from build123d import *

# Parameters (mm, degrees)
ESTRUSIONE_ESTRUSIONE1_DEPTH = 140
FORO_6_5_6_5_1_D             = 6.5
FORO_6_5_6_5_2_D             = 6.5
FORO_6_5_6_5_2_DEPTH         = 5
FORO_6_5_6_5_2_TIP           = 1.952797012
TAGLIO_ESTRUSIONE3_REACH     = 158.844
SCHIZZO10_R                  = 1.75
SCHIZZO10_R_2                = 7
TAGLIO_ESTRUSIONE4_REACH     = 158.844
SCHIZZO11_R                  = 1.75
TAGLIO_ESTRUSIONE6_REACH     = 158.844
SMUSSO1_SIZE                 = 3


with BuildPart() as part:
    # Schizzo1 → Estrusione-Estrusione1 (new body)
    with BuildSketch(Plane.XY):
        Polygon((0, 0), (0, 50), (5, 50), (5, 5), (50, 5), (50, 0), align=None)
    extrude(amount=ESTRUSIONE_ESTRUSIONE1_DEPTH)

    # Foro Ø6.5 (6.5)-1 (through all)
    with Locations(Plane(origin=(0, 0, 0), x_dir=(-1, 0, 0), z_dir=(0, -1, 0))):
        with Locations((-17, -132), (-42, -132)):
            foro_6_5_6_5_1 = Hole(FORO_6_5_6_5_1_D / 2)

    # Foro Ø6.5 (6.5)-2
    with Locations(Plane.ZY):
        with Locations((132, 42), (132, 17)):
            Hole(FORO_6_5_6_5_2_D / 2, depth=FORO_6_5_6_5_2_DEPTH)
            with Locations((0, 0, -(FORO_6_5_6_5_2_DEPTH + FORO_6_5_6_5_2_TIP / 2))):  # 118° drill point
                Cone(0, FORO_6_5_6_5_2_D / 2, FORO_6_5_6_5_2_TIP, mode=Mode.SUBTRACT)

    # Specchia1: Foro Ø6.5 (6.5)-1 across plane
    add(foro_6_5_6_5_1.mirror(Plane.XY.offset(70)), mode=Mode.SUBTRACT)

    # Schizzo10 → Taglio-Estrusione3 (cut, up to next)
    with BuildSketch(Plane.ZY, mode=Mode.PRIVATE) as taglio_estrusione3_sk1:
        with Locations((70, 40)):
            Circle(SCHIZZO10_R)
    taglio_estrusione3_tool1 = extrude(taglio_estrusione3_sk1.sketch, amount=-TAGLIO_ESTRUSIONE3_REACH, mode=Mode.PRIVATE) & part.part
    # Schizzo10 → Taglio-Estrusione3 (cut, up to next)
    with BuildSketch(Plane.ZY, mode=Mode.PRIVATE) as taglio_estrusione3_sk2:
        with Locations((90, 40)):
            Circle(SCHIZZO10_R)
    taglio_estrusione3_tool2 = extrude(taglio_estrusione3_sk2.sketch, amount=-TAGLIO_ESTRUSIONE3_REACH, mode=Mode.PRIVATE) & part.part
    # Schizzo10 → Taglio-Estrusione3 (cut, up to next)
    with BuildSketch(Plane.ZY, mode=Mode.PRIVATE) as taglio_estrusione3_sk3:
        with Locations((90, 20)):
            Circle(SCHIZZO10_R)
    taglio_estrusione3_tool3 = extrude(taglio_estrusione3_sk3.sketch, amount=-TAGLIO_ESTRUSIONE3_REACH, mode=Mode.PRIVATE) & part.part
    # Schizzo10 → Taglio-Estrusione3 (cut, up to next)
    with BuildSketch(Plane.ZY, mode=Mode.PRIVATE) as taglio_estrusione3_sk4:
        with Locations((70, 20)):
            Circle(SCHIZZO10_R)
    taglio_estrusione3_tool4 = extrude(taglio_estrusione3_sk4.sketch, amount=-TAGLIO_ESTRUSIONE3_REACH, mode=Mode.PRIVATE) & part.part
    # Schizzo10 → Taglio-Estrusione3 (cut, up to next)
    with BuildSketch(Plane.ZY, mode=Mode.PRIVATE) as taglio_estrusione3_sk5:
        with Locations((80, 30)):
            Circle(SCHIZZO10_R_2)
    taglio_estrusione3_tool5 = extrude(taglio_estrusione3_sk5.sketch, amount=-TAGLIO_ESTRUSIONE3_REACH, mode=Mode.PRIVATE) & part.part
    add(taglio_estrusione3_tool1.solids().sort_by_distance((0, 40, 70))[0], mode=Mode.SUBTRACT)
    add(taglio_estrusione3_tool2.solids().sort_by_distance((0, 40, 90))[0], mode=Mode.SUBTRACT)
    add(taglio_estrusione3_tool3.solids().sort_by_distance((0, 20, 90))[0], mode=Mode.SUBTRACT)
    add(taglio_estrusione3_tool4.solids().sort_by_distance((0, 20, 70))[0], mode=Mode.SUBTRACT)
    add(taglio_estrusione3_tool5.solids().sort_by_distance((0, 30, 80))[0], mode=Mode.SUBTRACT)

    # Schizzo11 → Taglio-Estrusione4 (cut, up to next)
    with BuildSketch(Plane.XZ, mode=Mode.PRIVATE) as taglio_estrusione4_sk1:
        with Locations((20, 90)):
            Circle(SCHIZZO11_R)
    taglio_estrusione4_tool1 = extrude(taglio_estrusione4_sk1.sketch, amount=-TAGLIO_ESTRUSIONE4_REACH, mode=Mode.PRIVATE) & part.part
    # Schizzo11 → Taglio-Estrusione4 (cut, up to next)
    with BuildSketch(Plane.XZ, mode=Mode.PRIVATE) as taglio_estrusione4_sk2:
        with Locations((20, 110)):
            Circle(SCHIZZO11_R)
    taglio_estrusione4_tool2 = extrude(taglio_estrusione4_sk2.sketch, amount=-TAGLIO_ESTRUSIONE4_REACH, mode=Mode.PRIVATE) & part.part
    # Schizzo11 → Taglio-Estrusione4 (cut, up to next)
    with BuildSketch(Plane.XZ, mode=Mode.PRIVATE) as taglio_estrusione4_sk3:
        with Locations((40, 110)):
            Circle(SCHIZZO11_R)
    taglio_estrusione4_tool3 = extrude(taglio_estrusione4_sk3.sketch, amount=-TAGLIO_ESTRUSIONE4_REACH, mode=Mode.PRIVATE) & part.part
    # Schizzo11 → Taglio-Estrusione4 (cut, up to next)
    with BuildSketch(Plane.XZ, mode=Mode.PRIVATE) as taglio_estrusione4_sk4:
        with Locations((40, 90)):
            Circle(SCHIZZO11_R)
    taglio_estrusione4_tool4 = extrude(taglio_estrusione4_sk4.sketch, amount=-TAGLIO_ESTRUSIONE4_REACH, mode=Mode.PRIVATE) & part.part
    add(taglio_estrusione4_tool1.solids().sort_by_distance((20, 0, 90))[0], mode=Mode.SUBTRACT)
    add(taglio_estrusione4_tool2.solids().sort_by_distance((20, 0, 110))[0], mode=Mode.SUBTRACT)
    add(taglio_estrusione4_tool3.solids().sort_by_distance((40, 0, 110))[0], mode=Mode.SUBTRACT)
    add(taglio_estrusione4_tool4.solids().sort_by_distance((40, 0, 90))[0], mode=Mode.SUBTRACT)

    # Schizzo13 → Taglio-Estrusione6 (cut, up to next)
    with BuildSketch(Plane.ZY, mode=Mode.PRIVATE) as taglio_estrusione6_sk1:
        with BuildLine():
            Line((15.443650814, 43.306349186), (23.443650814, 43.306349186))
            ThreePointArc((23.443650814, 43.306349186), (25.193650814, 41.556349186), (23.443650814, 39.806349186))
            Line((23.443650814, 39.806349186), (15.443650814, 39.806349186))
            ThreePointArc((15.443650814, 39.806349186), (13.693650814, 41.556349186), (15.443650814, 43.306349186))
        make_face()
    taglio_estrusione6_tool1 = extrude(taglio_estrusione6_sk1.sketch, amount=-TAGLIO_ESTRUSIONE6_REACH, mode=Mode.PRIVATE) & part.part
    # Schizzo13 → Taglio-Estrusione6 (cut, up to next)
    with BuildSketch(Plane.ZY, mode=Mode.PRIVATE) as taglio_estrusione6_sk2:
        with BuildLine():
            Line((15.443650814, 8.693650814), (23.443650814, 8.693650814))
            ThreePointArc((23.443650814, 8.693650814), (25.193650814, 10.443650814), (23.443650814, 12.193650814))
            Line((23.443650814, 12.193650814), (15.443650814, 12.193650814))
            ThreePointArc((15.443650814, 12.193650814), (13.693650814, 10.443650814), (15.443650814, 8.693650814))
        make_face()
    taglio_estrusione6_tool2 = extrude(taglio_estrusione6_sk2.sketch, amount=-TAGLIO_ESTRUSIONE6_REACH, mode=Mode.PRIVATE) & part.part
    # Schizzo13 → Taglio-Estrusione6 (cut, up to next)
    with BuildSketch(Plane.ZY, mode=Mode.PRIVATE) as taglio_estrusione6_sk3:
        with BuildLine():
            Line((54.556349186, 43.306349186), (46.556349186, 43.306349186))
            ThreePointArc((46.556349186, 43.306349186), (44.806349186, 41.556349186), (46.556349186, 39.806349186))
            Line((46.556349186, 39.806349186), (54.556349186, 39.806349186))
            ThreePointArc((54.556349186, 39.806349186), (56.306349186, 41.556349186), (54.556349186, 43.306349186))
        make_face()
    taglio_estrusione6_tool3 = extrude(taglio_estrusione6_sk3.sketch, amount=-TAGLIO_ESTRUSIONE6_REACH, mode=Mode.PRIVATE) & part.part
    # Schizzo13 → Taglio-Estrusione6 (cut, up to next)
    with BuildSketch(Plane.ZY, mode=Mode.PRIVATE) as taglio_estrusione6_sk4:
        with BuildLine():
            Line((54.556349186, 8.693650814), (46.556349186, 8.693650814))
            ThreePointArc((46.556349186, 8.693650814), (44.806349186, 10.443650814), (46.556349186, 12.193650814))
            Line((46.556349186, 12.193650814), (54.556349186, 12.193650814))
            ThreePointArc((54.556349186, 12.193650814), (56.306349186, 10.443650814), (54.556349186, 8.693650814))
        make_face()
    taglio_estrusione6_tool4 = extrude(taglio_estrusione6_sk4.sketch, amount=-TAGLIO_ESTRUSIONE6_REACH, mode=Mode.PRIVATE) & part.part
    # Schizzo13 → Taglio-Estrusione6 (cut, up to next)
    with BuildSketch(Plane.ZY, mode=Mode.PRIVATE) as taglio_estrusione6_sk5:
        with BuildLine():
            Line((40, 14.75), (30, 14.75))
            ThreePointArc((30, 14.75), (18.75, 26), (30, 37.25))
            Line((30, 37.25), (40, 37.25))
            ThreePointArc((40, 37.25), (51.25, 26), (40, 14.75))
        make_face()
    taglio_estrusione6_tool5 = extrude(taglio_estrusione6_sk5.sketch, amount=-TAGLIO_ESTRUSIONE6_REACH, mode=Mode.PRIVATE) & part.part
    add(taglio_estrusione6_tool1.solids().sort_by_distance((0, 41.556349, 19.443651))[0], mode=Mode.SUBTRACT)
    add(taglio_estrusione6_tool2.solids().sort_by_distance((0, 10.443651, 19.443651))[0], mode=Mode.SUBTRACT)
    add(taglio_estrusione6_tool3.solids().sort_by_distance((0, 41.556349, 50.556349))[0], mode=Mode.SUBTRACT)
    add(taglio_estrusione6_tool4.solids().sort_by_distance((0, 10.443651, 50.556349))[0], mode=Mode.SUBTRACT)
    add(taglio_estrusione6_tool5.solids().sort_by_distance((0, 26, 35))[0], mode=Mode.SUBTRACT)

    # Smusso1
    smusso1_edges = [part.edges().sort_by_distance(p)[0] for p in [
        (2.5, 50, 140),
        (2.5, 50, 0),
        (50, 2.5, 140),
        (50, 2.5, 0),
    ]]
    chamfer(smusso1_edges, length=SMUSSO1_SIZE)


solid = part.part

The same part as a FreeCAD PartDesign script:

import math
import FreeCAD as App
import Part
import Sketcher
from FreeCAD import Vector


def edges_at(feature, points):
    """Names of the edges that pass closest to the given points."""
    edges = feature.Shape.Edges
    near = lambda p: min(range(len(edges)), key=lambda i: edges[i].distToShape(Part.Vertex(*p))[0])
    return sorted({f"Edge{near(p) + 1}" for p in points})

doc = App.newDocument("Part")
body = doc.addObject("PartDesign::Body", "Body")

# Sketch on XY plane
sketch1 = body.newObject("Sketcher::SketchObject", "Sketch")
sketch1.AttachmentSupport = (doc.getObject("XY_Plane"), [""])
sketch1.MapMode = "FlatFace"
sketch1.addGeometry(Part.LineSegment(Vector(0, 50, 0), Vector(0, 0, 0)), False)
sketch1.addGeometry(Part.LineSegment(Vector(0, 0, 0), Vector(50, 0, 0)), False)
sketch1.addGeometry(Part.LineSegment(Vector(50, 0, 0), Vector(50, 5, 0)), False)
sketch1.addGeometry(Part.LineSegment(Vector(50, 5, 0), Vector(5, 5, 0)), False)
sketch1.addGeometry(Part.LineSegment(Vector(5, 5, 0), Vector(5, 50, 0)), False)
sketch1.addGeometry(Part.LineSegment(Vector(5, 50, 0), Vector(0, 50, 0)), False)
sketch1.addConstraint(Sketcher.Constraint("Coincident", 0, 2, 1, 1))
sketch1.addConstraint(Sketcher.Constraint("Coincident", 1, 2, 2, 1))
sketch1.addConstraint(Sketcher.Constraint("Coincident", 2, 2, 3, 1))
sketch1.addConstraint(Sketcher.Constraint("Coincident", 3, 2, 4, 1))
sketch1.addConstraint(Sketcher.Constraint("Coincident", 4, 2, 5, 1))
sketch1.addConstraint(Sketcher.Constraint("Coincident", 5, 2, 0, 1))
sketch1.addConstraint(Sketcher.Constraint("Vertical", 0))
sketch1.addConstraint(Sketcher.Constraint("Horizontal", 1))
sketch1.addConstraint(Sketcher.Constraint("Vertical", 2))
sketch1.addConstraint(Sketcher.Constraint("Horizontal", 3))
sketch1.addConstraint(Sketcher.Constraint("Vertical", 4))
sketch1.addConstraint(Sketcher.Constraint("Horizontal", 5))
sketch1.addConstraint(Sketcher.Constraint("Coincident", 0, 2, -1, 1))
sketch1.addConstraint(Sketcher.Constraint("Equal", 1, 0))
sketch1.addConstraint(Sketcher.Constraint("Equal", 5, 2))
sketch1.addConstraint(Sketcher.Constraint("DistanceX", 1, 1, 1, 2, 50.0))
sketch1.addConstraint(Sketcher.Constraint("DistanceX", 3, 2, 3, 1, 45.0))
pad1 = body.newObject("PartDesign::Pad", "Pad")
pad1.Profile = sketch1
pad1.Length = 140

# Sketch on XZ plane
sketch2 = body.newObject("Sketcher::SketchObject", "Sketch001")
sketch2.AttachmentSupport = (doc.getObject("XZ_Plane"), [""])
sketch2.MapMode = "FlatFace"
sketch2.addGeometry(Part.Circle(Vector(17, 132, 0), Vector(0, 0, 1), 3.2), False)
sketch2.addGeometry(Part.Circle(Vector(42, 132, 0), Vector(0, 0, 1), 3.2), False)
sketch2.addConstraint(Sketcher.Constraint("Equal", 0, 1))
sketch2.addConstraint(Sketcher.Constraint("Horizontal", 0, 3, 1, 3))
sketch2.addConstraint(Sketcher.Constraint("Diameter", 0, 6.5))
sketch2.addConstraint(Sketcher.Constraint("DistanceX", -1, 1, 0, 3, 17.0))
sketch2.addConstraint(Sketcher.Constraint("DistanceY", -1, 1, 0, 3, 132.0))
sketch2.addConstraint(Sketcher.Constraint("DistanceX", -1, 1, 1, 3, 42.0))
doc.recompute()
hole = body.newObject("PartDesign::Hole", "Hole")
hole.Profile = sketch2
hole.ThreadType = "None"
hole.Diameter = 6.5
hole.DepthType = "ThroughAll"

# Sketch on YZ plane
sketch3 = body.newObject("Sketcher::SketchObject", "Sketch002")
sketch3.AttachmentSupport = (doc.getObject("YZ_Plane"), [""])
sketch3.MapMode = "FlatFace"
sketch3.addGeometry(Part.Circle(Vector(42, 132, 0), Vector(0, 0, 1), 3.2), False)
sketch3.addGeometry(Part.Circle(Vector(17, 132, 0), Vector(0, 0, 1), 3.2), False)
sketch3.addConstraint(Sketcher.Constraint("Equal", 0, 1))
sketch3.addConstraint(Sketcher.Constraint("Horizontal", 0, 3, 1, 3))
sketch3.addConstraint(Sketcher.Constraint("Diameter", 0, 6.5))
sketch3.addConstraint(Sketcher.Constraint("DistanceX", -1, 1, 0, 3, 42.0))
sketch3.addConstraint(Sketcher.Constraint("DistanceY", -1, 1, 0, 3, 132.0))
sketch3.addConstraint(Sketcher.Constraint("DistanceX", -1, 1, 1, 3, 17.0))
doc.recompute()
hole2 = body.newObject("PartDesign::Hole", "Hole001")
hole2.Profile = sketch3
hole2.ThreadType = "None"
hole2.Diameter = 6.5
hole2.DepthType = "Dimension"
hole2.Depth = 5
hole2.DrillPoint = "Angled"
hole2.DrillPointAngle = 118
hole2.Reversed = True
doc.recompute()

datumplane = body.newObject("PartDesign::Plane", "DatumPlane")
datumplane.AttachmentSupport = (doc.getObject("XY_Plane"), [""])
datumplane.MapMode = "FlatFace"
datumplane.AttachmentOffset = App.Placement(Vector(0, 0, 70), App.Rotation())
mirrored = body.newObject("PartDesign::Mirrored", "Mirrored")
mirrored.Originals = [hole]
mirrored.MirrorPlane = (datumplane, [""])
body.Tip = mirrored

# Sketch on YZ plane
sketch4 = body.newObject("Sketcher::SketchObject", "Sketch003")
sketch4.AttachmentSupport = (doc.getObject("YZ_Plane"), [""])
sketch4.MapMode = "FlatFace"
sketch4.addGeometry(Part.Circle(Vector(40, 70, 0), Vector(0, 0, 1), 1.8), False)
sketch4.addConstraint(Sketcher.Constraint("Diameter", 0, 3.5))
sketch4.addConstraint(Sketcher.Constraint("DistanceX", -1, 1, 0, 3, 40.0))
sketch4.addConstraint(Sketcher.Constraint("DistanceY", -1, 1, 0, 3, 70.0))
pocket1 = body.newObject("PartDesign::Pocket", "Pocket")
pocket1.Profile = sketch4
pocket1.Type = "UpToFirst"
pocket1.Reversed = True

# Sketch on YZ plane
sketch5 = body.newObject("Sketcher::SketchObject", "Sketch004")
sketch5.AttachmentSupport = (doc.getObject("YZ_Plane"), [""])
sketch5.MapMode = "FlatFace"
sketch5.addGeometry(Part.Circle(Vector(40, 90, 0), Vector(0, 0, 1), 1.8), False)
sketch5.addConstraint(Sketcher.Constraint("Diameter", 0, 3.5))
sketch5.addConstraint(Sketcher.Constraint("DistanceX", -1, 1, 0, 3, 40.0))
sketch5.addConstraint(Sketcher.Constraint("DistanceY", -1, 1, 0, 3, 90.0))
pocket2 = body.newObject("PartDesign::Pocket", "Pocket001")
pocket2.Profile = sketch5
pocket2.Type = "UpToFirst"
pocket2.Reversed = True

# Sketch on YZ plane
sketch6 = body.newObject("Sketcher::SketchObject", "Sketch005")
sketch6.AttachmentSupport = (doc.getObject("YZ_Plane"), [""])
sketch6.MapMode = "FlatFace"
sketch6.addGeometry(Part.Circle(Vector(20, 90, 0), Vector(0, 0, 1), 1.8), False)
sketch6.addConstraint(Sketcher.Constraint("Diameter", 0, 3.5))
sketch6.addConstraint(Sketcher.Constraint("DistanceX", -1, 1, 0, 3, 20.0))
sketch6.addConstraint(Sketcher.Constraint("DistanceY", -1, 1, 0, 3, 90.0))
pocket3 = body.newObject("PartDesign::Pocket", "Pocket002")
pocket3.Profile = sketch6
pocket3.Type = "UpToFirst"
pocket3.Reversed = True

# Sketch on YZ plane
sketch7 = body.newObject("Sketcher::SketchObject", "Sketch006")
sketch7.AttachmentSupport = (doc.getObject("YZ_Plane"), [""])
sketch7.MapMode = "FlatFace"
sketch7.addGeometry(Part.Circle(Vector(20, 70, 0), Vector(0, 0, 1), 1.8), False)
sketch7.addConstraint(Sketcher.Constraint("Diameter", 0, 3.5))
sketch7.addConstraint(Sketcher.Constraint("DistanceX", -1, 1, 0, 3, 20.0))
sketch7.addConstraint(Sketcher.Constraint("DistanceY", -1, 1, 0, 3, 70.0))
pocket4 = body.newObject("PartDesign::Pocket", "Pocket003")
pocket4.Profile = sketch7
pocket4.Type = "UpToFirst"
pocket4.Reversed = True

# Sketch on YZ plane
sketch8 = body.newObject("Sketcher::SketchObject", "Sketch007")
sketch8.AttachmentSupport = (doc.getObject("YZ_Plane"), [""])
sketch8.MapMode = "FlatFace"
sketch8.addGeometry(Part.Circle(Vector(30, 80, 0), Vector(0, 0, 1), 7), False)
sketch8.addConstraint(Sketcher.Constraint("Diameter", 0, 14.0))
sketch8.addConstraint(Sketcher.Constraint("DistanceX", -1, 1, 0, 3, 30.0))
sketch8.addConstraint(Sketcher.Constraint("DistanceY", -1, 1, 0, 3, 80.0))
pocket5 = body.newObject("PartDesign::Pocket", "Pocket004")
pocket5.Profile = sketch8
pocket5.Type = "UpToFirst"
pocket5.Reversed = True

# Sketch on XZ plane
sketch9 = body.newObject("Sketcher::SketchObject", "Sketch008")
sketch9.AttachmentSupport = (doc.getObject("XZ_Plane"), [""])
sketch9.MapMode = "FlatFace"
sketch9.addGeometry(Part.Circle(Vector(20, 90, 0), Vector(0, 0, 1), 1.8), False)
sketch9.addConstraint(Sketcher.Constraint("Diameter", 0, 3.5))
sketch9.addConstraint(Sketcher.Constraint("DistanceX", -1, 1, 0, 3, 20.0))
sketch9.addConstraint(Sketcher.Constraint("DistanceY", -1, 1, 0, 3, 90.0))
pocket6 = body.newObject("PartDesign::Pocket", "Pocket005")
pocket6.Profile = sketch9
pocket6.Type = "UpToFirst"

# Sketch on XZ plane
sketch10 = body.newObject("Sketcher::SketchObject", "Sketch009")
sketch10.AttachmentSupport = (doc.getObject("XZ_Plane"), [""])
sketch10.MapMode = "FlatFace"
sketch10.addGeometry(Part.Circle(Vector(20, 110, 0), Vector(0, 0, 1), 1.8), False)
sketch10.addConstraint(Sketcher.Constraint("Diameter", 0, 3.5))
sketch10.addConstraint(Sketcher.Constraint("DistanceX", -1, 1, 0, 3, 20.0))
sketch10.addConstraint(Sketcher.Constraint("DistanceY", -1, 1, 0, 3, 110.0))
pocket7 = body.newObject("PartDesign::Pocket", "Pocket006")
pocket7.Profile = sketch10
pocket7.Type = "UpToFirst"

# Sketch on XZ plane
sketch11 = body.newObject("Sketcher::SketchObject", "Sketch010")
sketch11.AttachmentSupport = (doc.getObject("XZ_Plane"), [""])
sketch11.MapMode = "FlatFace"
sketch11.addGeometry(Part.Circle(Vector(40, 110, 0), Vector(0, 0, 1), 1.8), False)
sketch11.addConstraint(Sketcher.Constraint("Diameter", 0, 3.5))
sketch11.addConstraint(Sketcher.Constraint("DistanceX", -1, 1, 0, 3, 40.0))
sketch11.addConstraint(Sketcher.Constraint("DistanceY", -1, 1, 0, 3, 110.0))
pocket8 = body.newObject("PartDesign::Pocket", "Pocket007")
pocket8.Profile = sketch11
pocket8.Type = "UpToFirst"

# Sketch on XZ plane
sketch12 = body.newObject("Sketcher::SketchObject", "Sketch011")
sketch12.AttachmentSupport = (doc.getObject("XZ_Plane"), [""])
sketch12.MapMode = "FlatFace"
sketch12.addGeometry(Part.Circle(Vector(40, 90, 0), Vector(0, 0, 1), 1.8), False)
sketch12.addConstraint(Sketcher.Constraint("Diameter", 0, 3.5))
sketch12.addConstraint(Sketcher.Constraint("DistanceX", -1, 1, 0, 3, 40.0))
sketch12.addConstraint(Sketcher.Constraint("DistanceY", -1, 1, 0, 3, 90.0))
pocket9 = body.newObject("PartDesign::Pocket", "Pocket008")
pocket9.Profile = sketch12
pocket9.Type = "UpToFirst"

# Sketch on YZ plane
sketch13 = body.newObject("Sketcher::SketchObject", "Sketch012")
sketch13.AttachmentSupport = (doc.getObject("YZ_Plane"), [""])
sketch13.MapMode = "FlatFace"
sketch13.addGeometry(Part.LineSegment(Vector(43.3, 23.4, 0), Vector(43.3, 15.4, 0)), False)
sketch13.addGeometry(Part.ArcOfCircle(Part.Circle(Vector(41.6, 15.4, 0), Vector(0, 0, 1), 1.8), math.radians(180), math.radians(360)), False)
sketch13.addGeometry(Part.LineSegment(Vector(39.8, 15.4, 0), Vector(39.8, 23.4, 0)), False)
sketch13.addGeometry(Part.ArcOfCircle(Part.Circle(Vector(41.6, 23.4, 0), Vector(0, 0, 1), 1.8), math.radians(0), math.radians(180)), False)
sketch13.addConstraint(Sketcher.Constraint("Tangent", 0, 2, 1, 2))
sketch13.addConstraint(Sketcher.Constraint("Tangent", 1, 1, 2, 1))
sketch13.addConstraint(Sketcher.Constraint("Tangent", 2, 2, 3, 2))
sketch13.addConstraint(Sketcher.Constraint("Tangent", 3, 1, 0, 1))
sketch13.addConstraint(Sketcher.Constraint("Vertical", 0))
sketch13.addConstraint(Sketcher.Constraint("Vertical", 2))
sketch13.addConstraint(Sketcher.Constraint("DistanceY", 0, 2, 0, 1, 8.0))
sketch13.addConstraint(Sketcher.Constraint("Radius", 1, 1.75))
sketch13.addConstraint(Sketcher.Constraint("DistanceX", -1, 1, 1, 3, 41.556349))
sketch13.addConstraint(Sketcher.Constraint("DistanceY", -1, 1, 1, 3, 15.443651))
pocket10 = body.newObject("PartDesign::Pocket", "Pocket009")
pocket10.Profile = sketch13
pocket10.Type = "UpToFirst"
pocket10.Reversed = True

# Sketch on YZ plane
sketch14 = body.newObject("Sketcher::SketchObject", "Sketch013")
sketch14.AttachmentSupport = (doc.getObject("YZ_Plane"), [""])
sketch14.MapMode = "FlatFace"
sketch14.addGeometry(Part.LineSegment(Vector(8.7, 15.4, 0), Vector(8.7, 23.4, 0)), False)
sketch14.addGeometry(Part.ArcOfCircle(Part.Circle(Vector(10.4, 23.4, 0), Vector(0, 0, 1), 1.8), math.radians(0), math.radians(180)), False)
sketch14.addGeometry(Part.LineSegment(Vector(12.2, 23.4, 0), Vector(12.2, 15.4, 0)), False)
sketch14.addGeometry(Part.ArcOfCircle(Part.Circle(Vector(10.4, 15.4, 0), Vector(0, 0, 1), 1.8), math.radians(180), math.radians(360)), False)
sketch14.addConstraint(Sketcher.Constraint("Tangent", 0, 2, 1, 2))
sketch14.addConstraint(Sketcher.Constraint("Tangent", 1, 1, 2, 1))
sketch14.addConstraint(Sketcher.Constraint("Tangent", 2, 2, 3, 2))
sketch14.addConstraint(Sketcher.Constraint("Tangent", 3, 1, 0, 1))
sketch14.addConstraint(Sketcher.Constraint("Vertical", 0))
sketch14.addConstraint(Sketcher.Constraint("Vertical", 2))
sketch14.addConstraint(Sketcher.Constraint("DistanceY", 0, 1, 0, 2, 8.0))
sketch14.addConstraint(Sketcher.Constraint("Radius", 1, 1.75))
sketch14.addConstraint(Sketcher.Constraint("DistanceX", -1, 1, 1, 3, 10.443651))
sketch14.addConstraint(Sketcher.Constraint("DistanceY", -1, 1, 1, 3, 23.443651))
pocket11 = body.newObject("PartDesign::Pocket", "Pocket010")
pocket11.Profile = sketch14
pocket11.Type = "UpToFirst"
pocket11.Reversed = True

# Sketch on YZ plane
sketch15 = body.newObject("Sketcher::SketchObject", "Sketch014")
sketch15.AttachmentSupport = (doc.getObject("YZ_Plane"), [""])
sketch15.MapMode = "FlatFace"
sketch15.addGeometry(Part.LineSegment(Vector(43.3, 54.6, 0), Vector(43.3, 46.6, 0)), False)
sketch15.addGeometry(Part.ArcOfCircle(Part.Circle(Vector(41.6, 46.6, 0), Vector(0, 0, 1), 1.8), math.radians(180), math.radians(360)), False)
sketch15.addGeometry(Part.LineSegment(Vector(39.8, 46.6, 0), Vector(39.8, 54.6, 0)), False)
sketch15.addGeometry(Part.ArcOfCircle(Part.Circle(Vector(41.6, 54.6, 0), Vector(0, 0, 1), 1.8), math.radians(0), math.radians(180)), False)
sketch15.addConstraint(Sketcher.Constraint("Tangent", 0, 2, 1, 2))
sketch15.addConstraint(Sketcher.Constraint("Tangent", 1, 1, 2, 1))
sketch15.addConstraint(Sketcher.Constraint("Tangent", 2, 2, 3, 2))
sketch15.addConstraint(Sketcher.Constraint("Tangent", 3, 1, 0, 1))
sketch15.addConstraint(Sketcher.Constraint("Vertical", 0))
sketch15.addConstraint(Sketcher.Constraint("Vertical", 2))
sketch15.addConstraint(Sketcher.Constraint("DistanceY", 0, 2, 0, 1, 8.0))
sketch15.addConstraint(Sketcher.Constraint("Radius", 1, 1.75))
sketch15.addConstraint(Sketcher.Constraint("DistanceX", -1, 1, 1, 3, 41.556349))
sketch15.addConstraint(Sketcher.Constraint("DistanceY", -1, 1, 1, 3, 46.556349))
pocket12 = body.newObject("PartDesign::Pocket", "Pocket011")
pocket12.Profile = sketch15
pocket12.Type = "UpToFirst"
pocket12.Reversed = True

# Sketch on YZ plane
sketch16 = body.newObject("Sketcher::SketchObject", "Sketch015")
sketch16.AttachmentSupport = (doc.getObject("YZ_Plane"), [""])
sketch16.MapMode = "FlatFace"
sketch16.addGeometry(Part.LineSegment(Vector(8.7, 46.6, 0), Vector(8.7, 54.6, 0)), False)
sketch16.addGeometry(Part.ArcOfCircle(Part.Circle(Vector(10.4, 54.6, 0), Vector(0, 0, 1), 1.8), math.radians(0), math.radians(180)), False)
sketch16.addGeometry(Part.LineSegment(Vector(12.2, 54.6, 0), Vector(12.2, 46.6, 0)), False)
sketch16.addGeometry(Part.ArcOfCircle(Part.Circle(Vector(10.4, 46.6, 0), Vector(0, 0, 1), 1.8), math.radians(180), math.radians(360)), False)
sketch16.addConstraint(Sketcher.Constraint("Tangent", 0, 2, 1, 2))
sketch16.addConstraint(Sketcher.Constraint("Tangent", 1, 1, 2, 1))
sketch16.addConstraint(Sketcher.Constraint("Tangent", 2, 2, 3, 2))
sketch16.addConstraint(Sketcher.Constraint("Tangent", 3, 1, 0, 1))
sketch16.addConstraint(Sketcher.Constraint("Vertical", 0))
sketch16.addConstraint(Sketcher.Constraint("Vertical", 2))
sketch16.addConstraint(Sketcher.Constraint("DistanceY", 0, 1, 0, 2, 8.0))
sketch16.addConstraint(Sketcher.Constraint("Radius", 1, 1.75))
sketch16.addConstraint(Sketcher.Constraint("DistanceX", -1, 1, 1, 3, 10.443651))
sketch16.addConstraint(Sketcher.Constraint("DistanceY", -1, 1, 1, 3, 54.556349))
pocket13 = body.newObject("PartDesign::Pocket", "Pocket012")
pocket13.Profile = sketch16
pocket13.Type = "UpToFirst"
pocket13.Reversed = True

# Sketch on YZ plane
sketch17 = body.newObject("Sketcher::SketchObject", "Sketch016")
sketch17.AttachmentSupport = (doc.getObject("YZ_Plane"), [""])
sketch17.MapMode = "FlatFace"
sketch17.addGeometry(Part.LineSegment(Vector(15, 30, 0), Vector(15, 40, 0)), False)
sketch17.addGeometry(Part.ArcOfCircle(Part.Circle(Vector(26, 40, 0), Vector(0, 0, 1), 11), math.radians(0), math.radians(180)), False)
sketch17.addGeometry(Part.LineSegment(Vector(37, 40, 0), Vector(37, 30, 0)), False)
sketch17.addGeometry(Part.ArcOfCircle(Part.Circle(Vector(26, 30, 0), Vector(0, 0, 1), 11), math.radians(180), math.radians(360)), False)
sketch17.addConstraint(Sketcher.Constraint("Tangent", 0, 2, 1, 2))
sketch17.addConstraint(Sketcher.Constraint("Tangent", 1, 1, 2, 1))
sketch17.addConstraint(Sketcher.Constraint("Tangent", 2, 2, 3, 2))
sketch17.addConstraint(Sketcher.Constraint("Tangent", 3, 1, 0, 1))
sketch17.addConstraint(Sketcher.Constraint("Vertical", 0))
sketch17.addConstraint(Sketcher.Constraint("Vertical", 2))
sketch17.addConstraint(Sketcher.Constraint("DistanceY", 0, 1, 0, 2, 10.0))
sketch17.addConstraint(Sketcher.Constraint("Radius", 1, 11.25))
sketch17.addConstraint(Sketcher.Constraint("DistanceX", -1, 1, 1, 3, 26.0))
sketch17.addConstraint(Sketcher.Constraint("DistanceY", -1, 1, 1, 3, 40.0))
pocket14 = body.newObject("PartDesign::Pocket", "Pocket013")
pocket14.Profile = sketch17
pocket14.Type = "UpToFirst"
pocket14.Reversed = True
doc.recompute()

chamfer = body.newObject("PartDesign::Chamfer", "Chamfer")
chamfer.Base = (pocket14, edges_at(pocket14, [
    (2.5, 50, 140),
    (2.5, 50, 0),
    (50, 2.5, 140),
    (50, 2.5, 0),
]))
chamfer.Size = 3

doc.recompute()
